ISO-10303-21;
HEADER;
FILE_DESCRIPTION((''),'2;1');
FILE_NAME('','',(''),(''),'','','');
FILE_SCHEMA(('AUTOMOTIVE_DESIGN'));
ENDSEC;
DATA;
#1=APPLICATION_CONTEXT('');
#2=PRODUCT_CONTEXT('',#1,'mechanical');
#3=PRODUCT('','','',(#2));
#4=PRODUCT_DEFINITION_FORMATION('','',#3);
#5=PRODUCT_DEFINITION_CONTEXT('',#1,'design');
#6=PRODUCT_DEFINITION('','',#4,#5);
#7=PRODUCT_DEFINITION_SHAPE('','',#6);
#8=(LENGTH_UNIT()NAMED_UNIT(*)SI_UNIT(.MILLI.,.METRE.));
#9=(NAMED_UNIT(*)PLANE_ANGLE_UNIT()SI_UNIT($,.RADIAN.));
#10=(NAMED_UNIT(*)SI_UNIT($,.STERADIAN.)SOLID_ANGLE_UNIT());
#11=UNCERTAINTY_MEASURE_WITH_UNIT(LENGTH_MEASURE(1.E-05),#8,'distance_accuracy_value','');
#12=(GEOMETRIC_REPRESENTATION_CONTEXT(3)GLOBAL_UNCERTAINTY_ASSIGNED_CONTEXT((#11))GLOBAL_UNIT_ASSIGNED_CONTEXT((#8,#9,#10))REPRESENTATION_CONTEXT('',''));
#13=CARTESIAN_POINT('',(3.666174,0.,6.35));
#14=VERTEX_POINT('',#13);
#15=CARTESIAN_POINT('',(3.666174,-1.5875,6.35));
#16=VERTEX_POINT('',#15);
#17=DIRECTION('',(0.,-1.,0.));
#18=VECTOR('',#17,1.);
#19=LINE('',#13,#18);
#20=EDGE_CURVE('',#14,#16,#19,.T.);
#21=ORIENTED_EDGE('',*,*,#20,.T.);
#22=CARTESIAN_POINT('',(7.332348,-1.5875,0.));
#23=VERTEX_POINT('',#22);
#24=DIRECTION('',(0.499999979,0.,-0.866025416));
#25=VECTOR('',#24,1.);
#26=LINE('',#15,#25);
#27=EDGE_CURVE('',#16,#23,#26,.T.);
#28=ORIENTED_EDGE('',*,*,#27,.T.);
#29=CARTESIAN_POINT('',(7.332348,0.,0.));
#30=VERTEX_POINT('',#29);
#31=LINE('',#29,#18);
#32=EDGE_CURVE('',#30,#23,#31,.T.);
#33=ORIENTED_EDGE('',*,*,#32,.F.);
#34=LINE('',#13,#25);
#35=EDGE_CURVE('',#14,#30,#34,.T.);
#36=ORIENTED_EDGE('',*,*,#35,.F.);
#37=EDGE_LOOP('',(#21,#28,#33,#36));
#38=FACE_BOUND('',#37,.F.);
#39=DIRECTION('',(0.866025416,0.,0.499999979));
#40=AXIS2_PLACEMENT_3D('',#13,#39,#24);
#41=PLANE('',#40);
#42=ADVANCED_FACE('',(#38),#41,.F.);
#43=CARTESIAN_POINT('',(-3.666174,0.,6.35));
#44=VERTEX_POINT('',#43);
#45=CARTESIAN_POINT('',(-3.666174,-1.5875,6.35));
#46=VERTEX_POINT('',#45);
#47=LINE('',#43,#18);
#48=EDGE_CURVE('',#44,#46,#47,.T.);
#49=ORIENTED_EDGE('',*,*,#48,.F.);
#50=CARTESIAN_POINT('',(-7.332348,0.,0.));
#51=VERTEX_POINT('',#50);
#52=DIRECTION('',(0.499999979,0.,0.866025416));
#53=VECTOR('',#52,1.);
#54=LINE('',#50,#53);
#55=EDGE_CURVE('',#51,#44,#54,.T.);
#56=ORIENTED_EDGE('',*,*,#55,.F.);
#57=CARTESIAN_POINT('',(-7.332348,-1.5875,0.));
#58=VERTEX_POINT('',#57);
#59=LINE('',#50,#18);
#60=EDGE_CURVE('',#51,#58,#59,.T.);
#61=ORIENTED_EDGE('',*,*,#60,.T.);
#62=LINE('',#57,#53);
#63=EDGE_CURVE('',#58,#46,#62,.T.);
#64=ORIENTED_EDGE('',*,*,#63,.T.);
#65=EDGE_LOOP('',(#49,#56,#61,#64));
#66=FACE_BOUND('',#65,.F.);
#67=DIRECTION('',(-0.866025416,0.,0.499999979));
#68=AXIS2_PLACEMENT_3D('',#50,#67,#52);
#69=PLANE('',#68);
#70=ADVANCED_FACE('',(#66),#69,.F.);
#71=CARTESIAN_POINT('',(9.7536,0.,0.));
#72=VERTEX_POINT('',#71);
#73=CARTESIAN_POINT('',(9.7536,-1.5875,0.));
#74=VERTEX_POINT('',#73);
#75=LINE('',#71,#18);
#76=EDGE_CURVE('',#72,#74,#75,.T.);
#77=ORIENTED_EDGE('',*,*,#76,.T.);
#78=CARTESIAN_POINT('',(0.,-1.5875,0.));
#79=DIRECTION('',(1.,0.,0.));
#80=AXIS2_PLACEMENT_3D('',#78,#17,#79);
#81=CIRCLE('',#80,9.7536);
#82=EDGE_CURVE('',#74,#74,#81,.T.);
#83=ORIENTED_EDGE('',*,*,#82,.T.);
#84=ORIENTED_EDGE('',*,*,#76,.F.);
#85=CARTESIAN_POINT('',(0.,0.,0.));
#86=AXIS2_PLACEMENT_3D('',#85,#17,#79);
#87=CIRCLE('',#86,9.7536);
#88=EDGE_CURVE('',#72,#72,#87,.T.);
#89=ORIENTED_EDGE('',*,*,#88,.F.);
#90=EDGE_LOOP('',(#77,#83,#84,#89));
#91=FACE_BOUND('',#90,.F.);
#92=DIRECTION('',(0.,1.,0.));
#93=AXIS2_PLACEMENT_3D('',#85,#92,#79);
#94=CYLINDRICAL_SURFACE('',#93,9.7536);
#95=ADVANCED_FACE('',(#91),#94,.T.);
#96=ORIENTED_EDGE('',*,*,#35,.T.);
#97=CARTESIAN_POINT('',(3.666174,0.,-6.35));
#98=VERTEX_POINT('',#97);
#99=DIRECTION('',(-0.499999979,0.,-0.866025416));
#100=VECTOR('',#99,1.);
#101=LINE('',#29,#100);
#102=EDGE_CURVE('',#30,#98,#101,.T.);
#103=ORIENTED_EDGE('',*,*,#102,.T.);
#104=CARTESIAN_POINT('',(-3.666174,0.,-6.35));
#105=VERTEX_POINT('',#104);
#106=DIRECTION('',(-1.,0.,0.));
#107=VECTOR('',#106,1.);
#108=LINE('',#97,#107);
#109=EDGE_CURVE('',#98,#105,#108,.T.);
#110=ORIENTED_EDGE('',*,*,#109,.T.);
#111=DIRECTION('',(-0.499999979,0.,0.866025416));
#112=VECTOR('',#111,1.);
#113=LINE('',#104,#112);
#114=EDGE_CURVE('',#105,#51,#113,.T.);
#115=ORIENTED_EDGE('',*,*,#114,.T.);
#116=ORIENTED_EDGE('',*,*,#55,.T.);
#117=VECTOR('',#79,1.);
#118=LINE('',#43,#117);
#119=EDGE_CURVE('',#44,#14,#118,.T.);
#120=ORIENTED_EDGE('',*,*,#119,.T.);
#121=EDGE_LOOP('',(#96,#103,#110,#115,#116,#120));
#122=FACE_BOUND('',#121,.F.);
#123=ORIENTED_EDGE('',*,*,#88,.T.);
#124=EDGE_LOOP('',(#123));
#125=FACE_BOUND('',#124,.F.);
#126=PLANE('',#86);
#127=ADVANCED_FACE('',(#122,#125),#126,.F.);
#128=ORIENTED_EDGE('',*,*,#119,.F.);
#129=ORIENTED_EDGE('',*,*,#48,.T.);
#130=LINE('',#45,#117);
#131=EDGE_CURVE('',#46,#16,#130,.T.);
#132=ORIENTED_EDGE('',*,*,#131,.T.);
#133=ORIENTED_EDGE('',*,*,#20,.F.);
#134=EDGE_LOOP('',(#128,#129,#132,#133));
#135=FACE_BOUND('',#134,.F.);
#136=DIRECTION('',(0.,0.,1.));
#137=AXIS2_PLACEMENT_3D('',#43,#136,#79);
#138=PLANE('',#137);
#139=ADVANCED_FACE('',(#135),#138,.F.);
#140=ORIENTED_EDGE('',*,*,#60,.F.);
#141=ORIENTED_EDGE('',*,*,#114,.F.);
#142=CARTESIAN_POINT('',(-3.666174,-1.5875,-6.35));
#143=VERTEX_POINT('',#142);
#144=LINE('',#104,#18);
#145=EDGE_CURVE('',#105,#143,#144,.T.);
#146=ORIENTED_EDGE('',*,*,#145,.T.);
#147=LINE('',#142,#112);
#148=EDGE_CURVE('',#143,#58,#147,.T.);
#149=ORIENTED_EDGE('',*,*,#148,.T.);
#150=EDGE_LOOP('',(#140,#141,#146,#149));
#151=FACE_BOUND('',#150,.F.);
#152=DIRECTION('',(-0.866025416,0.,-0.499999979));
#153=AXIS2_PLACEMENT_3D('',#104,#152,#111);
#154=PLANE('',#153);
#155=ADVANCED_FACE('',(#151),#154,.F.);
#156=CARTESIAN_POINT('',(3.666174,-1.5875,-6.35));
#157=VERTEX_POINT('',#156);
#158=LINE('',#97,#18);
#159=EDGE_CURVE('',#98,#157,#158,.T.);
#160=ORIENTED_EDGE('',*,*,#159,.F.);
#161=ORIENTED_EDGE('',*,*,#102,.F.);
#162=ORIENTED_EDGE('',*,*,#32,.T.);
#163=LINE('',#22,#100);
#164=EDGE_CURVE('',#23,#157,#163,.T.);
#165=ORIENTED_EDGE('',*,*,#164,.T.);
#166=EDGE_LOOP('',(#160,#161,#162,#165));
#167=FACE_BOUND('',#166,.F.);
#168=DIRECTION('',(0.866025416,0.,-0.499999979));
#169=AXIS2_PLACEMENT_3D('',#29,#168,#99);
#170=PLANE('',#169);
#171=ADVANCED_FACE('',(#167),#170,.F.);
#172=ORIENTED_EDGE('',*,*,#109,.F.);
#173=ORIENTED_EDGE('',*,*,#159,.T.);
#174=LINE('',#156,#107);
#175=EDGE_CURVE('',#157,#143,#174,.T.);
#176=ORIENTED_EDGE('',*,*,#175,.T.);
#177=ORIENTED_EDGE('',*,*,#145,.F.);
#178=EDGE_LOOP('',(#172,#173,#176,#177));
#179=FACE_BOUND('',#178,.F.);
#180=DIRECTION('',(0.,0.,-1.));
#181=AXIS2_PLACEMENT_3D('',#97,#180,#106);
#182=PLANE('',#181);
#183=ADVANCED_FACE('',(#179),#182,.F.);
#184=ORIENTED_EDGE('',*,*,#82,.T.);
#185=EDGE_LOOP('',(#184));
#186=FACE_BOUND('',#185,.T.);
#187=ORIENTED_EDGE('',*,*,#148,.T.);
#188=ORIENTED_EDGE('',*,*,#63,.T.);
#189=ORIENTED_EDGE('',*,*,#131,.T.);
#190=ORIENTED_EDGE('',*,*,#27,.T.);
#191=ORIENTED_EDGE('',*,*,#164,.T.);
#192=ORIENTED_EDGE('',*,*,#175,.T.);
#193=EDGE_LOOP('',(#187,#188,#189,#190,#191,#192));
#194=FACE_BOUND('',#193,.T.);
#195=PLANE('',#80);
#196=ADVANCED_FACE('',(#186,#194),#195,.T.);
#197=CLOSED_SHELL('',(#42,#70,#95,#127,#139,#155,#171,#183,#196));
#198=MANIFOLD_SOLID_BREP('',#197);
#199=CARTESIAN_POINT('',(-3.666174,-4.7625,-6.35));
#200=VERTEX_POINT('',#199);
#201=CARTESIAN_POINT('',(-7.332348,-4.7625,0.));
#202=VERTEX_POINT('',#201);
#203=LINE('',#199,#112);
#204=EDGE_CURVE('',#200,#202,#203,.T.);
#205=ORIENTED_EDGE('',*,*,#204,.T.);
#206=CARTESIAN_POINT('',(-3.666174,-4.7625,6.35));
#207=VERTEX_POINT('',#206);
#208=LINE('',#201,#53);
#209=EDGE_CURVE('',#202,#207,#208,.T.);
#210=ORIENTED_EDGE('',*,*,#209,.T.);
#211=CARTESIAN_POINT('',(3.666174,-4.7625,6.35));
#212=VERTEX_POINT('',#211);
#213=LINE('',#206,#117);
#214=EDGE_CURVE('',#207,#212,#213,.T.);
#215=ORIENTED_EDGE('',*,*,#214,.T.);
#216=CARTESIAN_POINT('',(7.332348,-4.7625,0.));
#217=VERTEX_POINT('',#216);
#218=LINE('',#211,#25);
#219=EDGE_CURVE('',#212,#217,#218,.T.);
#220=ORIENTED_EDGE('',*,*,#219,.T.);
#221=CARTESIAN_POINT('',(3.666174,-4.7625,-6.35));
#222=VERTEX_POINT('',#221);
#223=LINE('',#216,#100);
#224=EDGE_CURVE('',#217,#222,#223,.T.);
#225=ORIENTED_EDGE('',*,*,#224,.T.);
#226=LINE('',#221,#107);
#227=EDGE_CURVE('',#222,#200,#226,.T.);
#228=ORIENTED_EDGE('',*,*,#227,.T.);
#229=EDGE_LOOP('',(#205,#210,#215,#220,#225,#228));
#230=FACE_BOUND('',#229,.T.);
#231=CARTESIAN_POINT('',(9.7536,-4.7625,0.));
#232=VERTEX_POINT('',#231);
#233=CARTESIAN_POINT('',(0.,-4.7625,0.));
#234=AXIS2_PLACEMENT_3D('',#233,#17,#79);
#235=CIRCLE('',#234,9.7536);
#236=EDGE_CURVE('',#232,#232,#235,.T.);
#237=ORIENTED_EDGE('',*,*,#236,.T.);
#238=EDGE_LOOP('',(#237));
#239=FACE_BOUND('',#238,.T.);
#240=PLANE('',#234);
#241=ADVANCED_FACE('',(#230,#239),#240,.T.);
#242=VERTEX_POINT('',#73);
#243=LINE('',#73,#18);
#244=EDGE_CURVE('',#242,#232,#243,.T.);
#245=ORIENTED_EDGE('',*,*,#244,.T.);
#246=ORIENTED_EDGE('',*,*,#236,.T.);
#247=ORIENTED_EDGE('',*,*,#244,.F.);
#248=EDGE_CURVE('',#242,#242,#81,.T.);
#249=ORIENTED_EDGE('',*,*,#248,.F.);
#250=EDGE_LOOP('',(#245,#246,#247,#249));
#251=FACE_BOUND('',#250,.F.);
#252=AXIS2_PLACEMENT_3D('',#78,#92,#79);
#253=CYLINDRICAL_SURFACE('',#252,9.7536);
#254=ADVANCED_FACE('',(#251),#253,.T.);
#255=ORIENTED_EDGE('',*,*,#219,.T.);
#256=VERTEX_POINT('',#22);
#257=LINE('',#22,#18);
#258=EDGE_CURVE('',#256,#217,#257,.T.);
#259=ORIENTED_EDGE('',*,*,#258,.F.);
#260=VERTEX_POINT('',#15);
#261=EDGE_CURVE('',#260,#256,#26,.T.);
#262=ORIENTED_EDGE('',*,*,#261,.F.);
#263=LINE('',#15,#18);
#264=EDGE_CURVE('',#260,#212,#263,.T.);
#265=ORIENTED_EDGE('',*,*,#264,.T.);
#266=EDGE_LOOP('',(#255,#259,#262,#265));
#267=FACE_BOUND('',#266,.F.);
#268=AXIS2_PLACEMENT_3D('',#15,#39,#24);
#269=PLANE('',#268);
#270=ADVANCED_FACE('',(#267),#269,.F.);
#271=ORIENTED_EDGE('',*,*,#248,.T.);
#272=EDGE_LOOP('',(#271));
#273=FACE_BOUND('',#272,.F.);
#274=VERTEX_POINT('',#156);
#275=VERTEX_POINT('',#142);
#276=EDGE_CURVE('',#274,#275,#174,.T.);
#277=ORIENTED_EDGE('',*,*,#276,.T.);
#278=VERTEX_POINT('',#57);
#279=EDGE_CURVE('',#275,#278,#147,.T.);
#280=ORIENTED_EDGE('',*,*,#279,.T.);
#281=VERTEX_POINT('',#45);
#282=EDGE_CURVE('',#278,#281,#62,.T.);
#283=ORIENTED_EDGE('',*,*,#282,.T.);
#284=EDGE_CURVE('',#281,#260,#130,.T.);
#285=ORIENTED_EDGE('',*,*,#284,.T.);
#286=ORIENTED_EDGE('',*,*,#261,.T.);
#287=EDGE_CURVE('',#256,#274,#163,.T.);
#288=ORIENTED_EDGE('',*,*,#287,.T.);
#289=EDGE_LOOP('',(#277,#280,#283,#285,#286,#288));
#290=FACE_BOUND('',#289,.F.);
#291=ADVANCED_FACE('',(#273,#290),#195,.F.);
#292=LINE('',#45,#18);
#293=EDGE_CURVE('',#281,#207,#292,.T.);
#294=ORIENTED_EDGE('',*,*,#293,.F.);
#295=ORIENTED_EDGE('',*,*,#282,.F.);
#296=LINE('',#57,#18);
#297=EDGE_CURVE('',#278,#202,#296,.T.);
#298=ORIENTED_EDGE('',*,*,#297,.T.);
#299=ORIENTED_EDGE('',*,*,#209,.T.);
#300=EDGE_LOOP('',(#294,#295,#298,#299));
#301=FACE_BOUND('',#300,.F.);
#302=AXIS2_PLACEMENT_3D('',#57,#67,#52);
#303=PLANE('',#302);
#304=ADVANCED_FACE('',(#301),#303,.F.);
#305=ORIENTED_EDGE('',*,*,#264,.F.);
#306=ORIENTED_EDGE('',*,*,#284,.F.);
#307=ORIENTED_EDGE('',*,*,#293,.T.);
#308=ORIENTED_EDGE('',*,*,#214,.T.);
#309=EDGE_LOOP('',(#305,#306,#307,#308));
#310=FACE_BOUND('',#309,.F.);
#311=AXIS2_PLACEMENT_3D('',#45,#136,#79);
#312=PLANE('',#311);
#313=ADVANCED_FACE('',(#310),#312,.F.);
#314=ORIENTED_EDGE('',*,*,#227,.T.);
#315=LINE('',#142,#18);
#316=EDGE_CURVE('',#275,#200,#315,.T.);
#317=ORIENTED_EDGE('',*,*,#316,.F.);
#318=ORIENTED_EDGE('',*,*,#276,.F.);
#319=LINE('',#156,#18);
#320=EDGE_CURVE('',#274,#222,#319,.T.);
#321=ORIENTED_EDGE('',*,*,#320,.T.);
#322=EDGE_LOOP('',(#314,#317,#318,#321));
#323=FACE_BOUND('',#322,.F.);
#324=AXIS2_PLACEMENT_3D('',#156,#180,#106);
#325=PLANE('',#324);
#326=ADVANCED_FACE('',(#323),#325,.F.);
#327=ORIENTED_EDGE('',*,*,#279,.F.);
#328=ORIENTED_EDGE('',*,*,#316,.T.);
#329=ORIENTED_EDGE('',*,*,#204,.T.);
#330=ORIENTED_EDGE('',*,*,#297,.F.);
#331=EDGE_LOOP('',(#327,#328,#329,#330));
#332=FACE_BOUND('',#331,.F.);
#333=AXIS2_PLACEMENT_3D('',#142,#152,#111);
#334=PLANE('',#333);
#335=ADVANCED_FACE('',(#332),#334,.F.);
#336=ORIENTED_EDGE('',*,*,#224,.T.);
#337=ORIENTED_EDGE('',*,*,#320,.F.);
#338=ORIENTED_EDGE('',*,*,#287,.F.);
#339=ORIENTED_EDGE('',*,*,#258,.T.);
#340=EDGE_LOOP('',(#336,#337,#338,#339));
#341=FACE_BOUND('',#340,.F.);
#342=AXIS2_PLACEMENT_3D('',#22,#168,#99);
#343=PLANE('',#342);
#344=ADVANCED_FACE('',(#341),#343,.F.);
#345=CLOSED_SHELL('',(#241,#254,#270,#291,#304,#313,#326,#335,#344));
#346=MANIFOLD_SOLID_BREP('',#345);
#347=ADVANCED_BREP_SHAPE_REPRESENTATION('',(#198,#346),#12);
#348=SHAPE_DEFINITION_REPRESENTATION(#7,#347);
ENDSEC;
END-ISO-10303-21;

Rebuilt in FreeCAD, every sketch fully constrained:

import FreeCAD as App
import Part
import Sketcher
Q = App.Units.Quantity


def add_polygon(sketch, points):
    """Adds a closed chain of lines whose ends are joined by coincident constraints."""
    first, n = sketch.GeometryCount, len(points)
    for a, b in zip(points, points[1:] + points[:1]):
        sketch.addGeometry(Part.LineSegment(App.Vector(*a, 0), App.Vector(*b, 0)), False)
    for i in range(n):
        sketch.addConstraint(Sketcher.Constraint("Coincident", first + i, 2, first + (i + 1) % n, 1))

doc = App.newDocument("Part")
body = doc.addObject("PartDesign::Body", "Body")

# Sketch on XZ plane
sketch1 = doc.addObject("Sketcher::SketchObject", "Sketch")
body.addObject(sketch1)
sketch1.AttachmentSupport = (doc.XZ_Plane, [""])
sketch1.MapMode = "FlatFace"
sketch1.addGeometry(Part.Circle(App.Vector(0, 0, 0), App.Vector(0, 0, 1), 9.7536), False)  # 0
add_polygon(sketch1, [(3.666174, -6.35), (-3.666174, -6.35), (-7.332348, 0), (-3.666174, 6.35), (3.666174, 6.35), (7.332348, 0)])  # lines 1-6
sketch1.addConstraint([
    Sketcher.Constraint("Horizontal", 1),
    Sketcher.Constraint("Horizontal", 4),
    Sketcher.Constraint("Coincident", 0, 3, -1, 1),
    Sketcher.Constraint("Symmetric", 1, 2, 4, 2, -1, 1),
    Sketcher.Constraint("Symmetric", 2, 2, 5, 2, -1, 1),
    Sketcher.Constraint("PointOnObject", 2, 2, -1),
    Sketcher.Constraint("Parallel", 3, 6),
    Sketcher.Constraint("Vertical", 1, 2, 3, 2),
    Sketcher.Constraint("Diameter", 0, Q("0.768 in")),
    Sketcher.Constraint("Angle", 2, Q("119.999999 deg")),
    Sketcher.Constraint("DistanceY", 1, 2, 3, 2, Q("0.5 in")),
    Sketcher.Constraint("DistanceX", 1, 2, 1, 1, Q("7.332348 mm")),
])
pad1 = doc.addObject("PartDesign::Pad", "Pad")
body.addObject(pad1)
pad1.Profile = sketch1
pad1.Length = Q("0.0625 in")
body2 = doc.addObject("PartDesign::Body", "Body001")

# Sketch on XZ plane
sketch2 = doc.addObject("Sketcher::SketchObject", "Sketch001")
body2.addObject(sketch2)
sketch2.AttachmentSupport = (doc.getObject("XZ_Plane001"), [""])
sketch2.MapMode = "FlatFace"
sketch2.AttachmentOffset = App.Placement(App.Vector(0, 0, 0.0625 * 25.4), App.Rotation())
sketch2.addGeometry(Part.Circle(App.Vector(0, 0, 0), App.Vector(0, 0, 1), 9.7536), False)  # 0
add_polygon(sketch2, [(-3.666174, -6.35), (-7.332348, 0), (-3.666174, 6.35), (3.666174, 6.35), (7.332348, 0), (3.666174, -6.35)])  # lines 1-6
sketch2.addConstraint([
    Sketcher.Constraint("Horizontal", 3),
    Sketcher.Constraint("Horizontal", 6),
    Sketcher.Constraint("Coincident", 0, 3, -1, 1),
    Sketcher.Constraint("Symmetric", 1, 2, 4, 2, -1, 1),
    Sketcher.Constraint("Symmetric", 2, 2, 5, 2, -1, 1),
    Sketcher.Constraint("PointOnObject", 1, 2, -1),
    Sketcher.Constraint("Parallel", 1, 4),
    Sketcher.Constraint("Vertical", 3, 2, 5, 2),
    Sketcher.Constraint("Diameter", 0, Q("0.768 in")),
    Sketcher.Constraint("Angle", 1, Q("119.999999 deg")),
    Sketcher.Constraint("DistanceY", 5, 2, 3, 2, Q("0.5 in")),
    Sketcher.Constraint("DistanceX", 3, 1, 3, 2, Q("7.332348 mm")),
])
pad2 = doc.addObject("PartDesign::Pad", "Pad001")
body2.addObject(pad2)
pad2.Profile = sketch2
pad2.Length = Q("0.125 in")

doc.recompute()
